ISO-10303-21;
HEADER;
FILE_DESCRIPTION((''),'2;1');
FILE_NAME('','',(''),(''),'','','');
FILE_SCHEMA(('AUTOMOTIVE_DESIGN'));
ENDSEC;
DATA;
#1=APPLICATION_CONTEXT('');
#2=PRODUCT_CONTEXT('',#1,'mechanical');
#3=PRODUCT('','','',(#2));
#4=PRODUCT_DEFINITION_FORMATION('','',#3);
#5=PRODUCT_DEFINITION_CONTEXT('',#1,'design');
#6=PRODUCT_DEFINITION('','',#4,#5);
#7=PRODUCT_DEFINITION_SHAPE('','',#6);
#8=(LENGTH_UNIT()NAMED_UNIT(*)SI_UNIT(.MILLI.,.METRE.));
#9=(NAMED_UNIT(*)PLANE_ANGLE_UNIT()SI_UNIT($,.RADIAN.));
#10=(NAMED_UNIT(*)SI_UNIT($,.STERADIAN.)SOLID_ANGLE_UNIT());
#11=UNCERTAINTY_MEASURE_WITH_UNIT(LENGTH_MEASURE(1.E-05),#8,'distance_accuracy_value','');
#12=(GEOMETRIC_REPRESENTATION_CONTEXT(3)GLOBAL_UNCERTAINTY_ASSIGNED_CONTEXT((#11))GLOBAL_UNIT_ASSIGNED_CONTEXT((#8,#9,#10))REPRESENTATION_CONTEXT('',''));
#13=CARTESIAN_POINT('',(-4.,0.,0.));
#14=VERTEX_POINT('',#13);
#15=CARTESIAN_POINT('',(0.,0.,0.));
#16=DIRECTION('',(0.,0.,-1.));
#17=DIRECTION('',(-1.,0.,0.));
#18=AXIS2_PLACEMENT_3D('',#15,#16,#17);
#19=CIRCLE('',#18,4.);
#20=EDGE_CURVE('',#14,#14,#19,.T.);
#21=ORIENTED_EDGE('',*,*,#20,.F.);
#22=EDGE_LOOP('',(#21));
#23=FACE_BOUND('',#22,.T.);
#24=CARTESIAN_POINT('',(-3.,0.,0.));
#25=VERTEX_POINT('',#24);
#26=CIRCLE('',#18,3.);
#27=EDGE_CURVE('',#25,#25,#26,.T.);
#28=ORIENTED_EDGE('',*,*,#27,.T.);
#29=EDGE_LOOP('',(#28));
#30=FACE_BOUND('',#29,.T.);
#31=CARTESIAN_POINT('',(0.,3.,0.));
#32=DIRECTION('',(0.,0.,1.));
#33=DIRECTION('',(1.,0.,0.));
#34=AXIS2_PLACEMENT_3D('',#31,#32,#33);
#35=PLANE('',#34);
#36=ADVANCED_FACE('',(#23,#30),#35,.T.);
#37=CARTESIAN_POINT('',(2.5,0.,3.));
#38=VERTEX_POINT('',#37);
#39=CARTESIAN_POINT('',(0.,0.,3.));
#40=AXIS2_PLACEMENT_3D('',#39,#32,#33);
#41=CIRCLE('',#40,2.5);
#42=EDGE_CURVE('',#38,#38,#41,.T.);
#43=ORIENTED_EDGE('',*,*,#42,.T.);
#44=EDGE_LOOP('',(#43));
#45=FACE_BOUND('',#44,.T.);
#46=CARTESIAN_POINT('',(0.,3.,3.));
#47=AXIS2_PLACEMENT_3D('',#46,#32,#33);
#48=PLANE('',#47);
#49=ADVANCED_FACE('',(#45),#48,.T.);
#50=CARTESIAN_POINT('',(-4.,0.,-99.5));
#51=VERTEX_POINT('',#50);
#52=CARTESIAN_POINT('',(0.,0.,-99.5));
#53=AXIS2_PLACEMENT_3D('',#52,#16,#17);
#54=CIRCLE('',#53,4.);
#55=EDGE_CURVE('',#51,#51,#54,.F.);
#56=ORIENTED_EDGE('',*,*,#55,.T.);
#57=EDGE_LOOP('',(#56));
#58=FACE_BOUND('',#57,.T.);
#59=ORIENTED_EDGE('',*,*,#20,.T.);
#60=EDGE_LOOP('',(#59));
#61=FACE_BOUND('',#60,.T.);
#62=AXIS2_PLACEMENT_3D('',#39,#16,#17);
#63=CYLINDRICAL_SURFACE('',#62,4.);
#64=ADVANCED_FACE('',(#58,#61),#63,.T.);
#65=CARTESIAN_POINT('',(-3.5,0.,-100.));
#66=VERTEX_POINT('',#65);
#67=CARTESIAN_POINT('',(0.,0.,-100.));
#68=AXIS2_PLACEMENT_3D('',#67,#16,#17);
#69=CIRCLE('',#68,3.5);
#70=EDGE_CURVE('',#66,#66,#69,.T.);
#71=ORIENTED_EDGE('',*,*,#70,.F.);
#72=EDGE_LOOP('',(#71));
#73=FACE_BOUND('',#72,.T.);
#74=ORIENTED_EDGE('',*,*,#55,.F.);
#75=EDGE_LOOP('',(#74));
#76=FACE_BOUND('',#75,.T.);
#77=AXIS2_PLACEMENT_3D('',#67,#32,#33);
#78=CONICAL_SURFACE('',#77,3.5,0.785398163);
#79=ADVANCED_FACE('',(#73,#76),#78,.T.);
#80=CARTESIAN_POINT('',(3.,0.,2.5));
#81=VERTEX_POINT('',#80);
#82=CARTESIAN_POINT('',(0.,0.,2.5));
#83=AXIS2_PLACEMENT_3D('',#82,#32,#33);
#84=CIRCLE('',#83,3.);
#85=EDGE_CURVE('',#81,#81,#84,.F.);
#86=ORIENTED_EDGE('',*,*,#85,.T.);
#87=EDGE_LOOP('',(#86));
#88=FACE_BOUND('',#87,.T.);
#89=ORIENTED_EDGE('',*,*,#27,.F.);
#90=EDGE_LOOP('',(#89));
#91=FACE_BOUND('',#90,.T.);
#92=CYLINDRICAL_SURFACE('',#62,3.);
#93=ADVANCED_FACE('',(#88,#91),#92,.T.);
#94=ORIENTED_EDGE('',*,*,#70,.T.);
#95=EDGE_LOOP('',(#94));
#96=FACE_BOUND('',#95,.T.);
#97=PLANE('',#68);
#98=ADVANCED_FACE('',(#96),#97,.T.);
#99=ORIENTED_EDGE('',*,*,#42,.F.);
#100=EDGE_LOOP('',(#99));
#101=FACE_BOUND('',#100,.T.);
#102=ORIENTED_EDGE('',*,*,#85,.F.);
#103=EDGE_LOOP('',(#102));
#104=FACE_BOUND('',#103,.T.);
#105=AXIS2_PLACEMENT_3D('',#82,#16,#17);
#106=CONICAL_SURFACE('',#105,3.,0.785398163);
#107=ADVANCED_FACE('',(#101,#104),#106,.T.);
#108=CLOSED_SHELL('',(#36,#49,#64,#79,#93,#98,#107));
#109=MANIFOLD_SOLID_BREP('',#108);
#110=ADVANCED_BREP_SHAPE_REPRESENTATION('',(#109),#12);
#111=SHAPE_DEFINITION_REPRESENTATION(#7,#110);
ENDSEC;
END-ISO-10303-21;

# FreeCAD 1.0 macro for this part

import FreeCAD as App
import Part
import Sketcher
from FreeCAD import Vector


def edges_at(feature, points):
    """Names of the edges that pass closest to the given points."""
    edges = feature.Shape.Edges
    near = lambda p: min(range(len(edges)), key=lambda i: edges[i].distToShape(Part.Vertex(*p))[0])
    return sorted({f"Edge{near(p) + 1}" for p in points})


def add_polygon(sketch, points):
    """Adds a closed chain of lines whose ends are joined by coincident constraints."""
    first, n = sketch.GeometryCount, len(points)
    for a, b in zip(points, points[1:] + points[:1]):
        sketch.addGeometry(Part.LineSegment(App.Vector(*a, 0), App.Vector(*b, 0)), False)
    for i in range(n):
        sketch.addConstraint(Sketcher.Constraint("Coincident", first + i, 2, first + (i + 1) % n, 1))

doc = App.newDocument("Part")
body = doc.addObject("PartDesign::Body", "Body")

sketch1 = body.newObject("Sketcher::SketchObject", "Sketch")
sketch1.AttachmentSupport = (doc.getObject("YZ_Plane"), [""])
sketch1.MapMode = "FlatFace"
add_polygon(sketch1, [(0, 3), (0, -100), (4, -100), (4, 0), (3, 0), (3, 3)])
sketch1.addConstraint([
    Sketcher.Constraint("Vertical", 0),
    Sketcher.Constraint("Horizontal", 1),
    Sketcher.Constraint("Vertical", 2),
    Sketcher.Constraint("Horizontal", 3),
    Sketcher.Constraint("Vertical", 4),
    Sketcher.Constraint("Horizontal", 5),
    Sketcher.Constraint("PointOnObject", 0, 2, -2),
    Sketcher.Constraint("PointOnObject", 2, 2, -1),
    Sketcher.Constraint("Equal", 5, 4),
    Sketcher.Constraint("DistanceX", 1, 1, 1, 2, 4.0),
    Sketcher.Constraint("DistanceX", 3, 2, 3, 1, 1.0),
    Sketcher.Constraint("DistanceY", 0, 2, 0, 1, 103.0),
])
revolution = body.newObject("PartDesign::Revolution", "Revolution")
revolution.Profile = sketch1
revolution.ReferenceAxis = (sketch1, ["V_Axis"])
revolution.Angle = 360
doc.recompute()

chamfer = body.newObject("PartDesign::Chamfer", "Chamfer")
chamfer.Base = (revolution, edges_at(revolution, [(0, -4, -100), (0, -3, 3)]))
chamfer.Size = 0.5

doc.recompute()
